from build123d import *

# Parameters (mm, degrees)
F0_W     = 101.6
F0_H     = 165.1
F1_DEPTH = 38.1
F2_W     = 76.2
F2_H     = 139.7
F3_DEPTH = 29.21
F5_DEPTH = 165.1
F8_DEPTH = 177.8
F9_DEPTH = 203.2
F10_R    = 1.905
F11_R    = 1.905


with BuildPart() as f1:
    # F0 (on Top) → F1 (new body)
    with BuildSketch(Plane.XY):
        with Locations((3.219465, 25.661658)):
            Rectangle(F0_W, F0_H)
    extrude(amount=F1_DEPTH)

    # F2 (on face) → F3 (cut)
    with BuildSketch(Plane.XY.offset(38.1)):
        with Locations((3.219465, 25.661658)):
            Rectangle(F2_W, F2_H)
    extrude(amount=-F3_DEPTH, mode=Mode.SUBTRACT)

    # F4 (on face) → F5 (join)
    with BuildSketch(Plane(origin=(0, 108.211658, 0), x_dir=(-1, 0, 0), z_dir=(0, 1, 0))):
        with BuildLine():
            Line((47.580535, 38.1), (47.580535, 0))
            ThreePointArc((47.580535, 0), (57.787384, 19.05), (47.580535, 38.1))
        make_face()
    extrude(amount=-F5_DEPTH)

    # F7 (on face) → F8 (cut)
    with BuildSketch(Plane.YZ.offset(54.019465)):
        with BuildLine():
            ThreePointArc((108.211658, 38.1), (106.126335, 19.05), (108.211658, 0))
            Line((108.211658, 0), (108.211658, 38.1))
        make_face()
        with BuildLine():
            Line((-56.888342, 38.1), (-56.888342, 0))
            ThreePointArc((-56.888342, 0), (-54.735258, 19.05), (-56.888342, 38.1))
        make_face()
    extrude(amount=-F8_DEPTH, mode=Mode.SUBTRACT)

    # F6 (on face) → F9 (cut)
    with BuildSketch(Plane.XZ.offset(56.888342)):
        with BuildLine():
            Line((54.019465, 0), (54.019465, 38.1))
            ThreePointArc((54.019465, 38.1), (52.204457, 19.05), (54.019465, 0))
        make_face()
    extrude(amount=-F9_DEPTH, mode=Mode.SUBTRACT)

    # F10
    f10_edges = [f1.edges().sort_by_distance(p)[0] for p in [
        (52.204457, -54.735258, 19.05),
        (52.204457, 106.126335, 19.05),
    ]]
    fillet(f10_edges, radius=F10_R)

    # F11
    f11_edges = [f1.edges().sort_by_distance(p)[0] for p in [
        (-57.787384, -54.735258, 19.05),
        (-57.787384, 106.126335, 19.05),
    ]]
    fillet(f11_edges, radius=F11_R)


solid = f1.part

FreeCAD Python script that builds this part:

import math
import FreeCAD as App
import Part
import Sketcher
Q = App.Units.Quantity


def edges_at(feature, points):
    """Names of the edges that pass closest to the given points."""
    edges = feature.Shape.Edges
    near = lambda p: min(range(len(edges)), key=lambda i: edges[i].distToShape(Part.Vertex(*p))[0])
    return sorted({f"Edge{near(p) + 1}" for p in points})

doc = App.newDocument("Part")
body = doc.addObject("PartDesign::Body", "Body")

sketch1 = body.newObject("Sketcher::SketchObject", "Sketch")
sketch1.AttachmentSupport = (doc.getObject("XY_Plane"), [""])
sketch1.MapMode = "FlatFace"
sketch1.addGeometry(Part.LineSegment(App.Vector(-48, 108, 0), App.Vector(-48, -57, 0)), False)
sketch1.addGeometry(Part.LineSegment(App.Vector(-48, -57, 0), App.Vector(54, -57, 0)), False)
sketch1.addGeometry(Part.LineSegment(App.Vector(54, -57, 0), App.Vector(54, 108, 0)), False)
sketch1.addGeometry(Part.LineSegment(App.Vector(54, 108, 0), App.Vector(-48, 108, 0)), False)
sketch1.addConstraint(Sketcher.Constraint("Coincident", 0, 2, 1, 1))
sketch1.addConstraint(Sketcher.Constraint("Coincident", 1, 2, 2, 1))
sketch1.addConstraint(Sketcher.Constraint("Coincident", 2, 2, 3, 1))
sketch1.addConstraint(Sketcher.Constraint("Coincident", 3, 2, 0, 1))
sketch1.addConstraint(Sketcher.Constraint("Vertical", 0))
sketch1.addConstraint(Sketcher.Constraint("Horizontal", 1))
sketch1.addConstraint(Sketcher.Constraint("Vertical", 2))
sketch1.addConstraint(Sketcher.Constraint("Horizontal", 3))
sketch1.addConstraint(Sketcher.Constraint("DistanceX", 1, 1, 1, 2, Q("4 in")))
sketch1.addConstraint(Sketcher.Constraint("DistanceY", 0, 2, 0, 1, Q("6.5 in")))
sketch1.addConstraint(Sketcher.Constraint("DistanceY", -1, 1, 2, 2, 108.211658))
sketch1.addConstraint(Sketcher.Constraint("DistanceX", 0, 2, -1, 1, 47.580535))
pad1 = body.newObject("PartDesign::Pad", "Pad")
pad1.Profile = sketch1
pad1.Length = Q("1.5 in")

sketch2 = body.newObject("Sketcher::SketchObject", "Sketch001")
sketch2.AttachmentSupport = (doc.getObject("XY_Plane"), [""])
sketch2.MapMode = "FlatFace"
sketch2.AttachmentOffset = App.Placement(App.Vector(0, 0, 1.5 * 25.4), App.Rotation())
sketch2.addGeometry(Part.LineSegment(App.Vector(-35, 96, 0), App.Vector(-35, -44, 0)), False)
sketch2.addGeometry(Part.LineSegment(App.Vector(-35, -44, 0), App.Vector(41, -44, 0)), False)
sketch2.addGeometry(Part.LineSegment(App.Vector(41, -44, 0), App.Vector(41, 96, 0)), False)
sketch2.addGeometry(Part.LineSegment(App.Vector(41, 96, 0), App.Vector(-35, 96, 0)), False)
sketch2.addConstraint(Sketcher.Constraint("Coincident", 0, 2, 1, 1))
sketch2.addConstraint(Sketcher.Constraint("Coincident", 1, 2, 2, 1))
sketch2.addConstraint(Sketcher.Constraint("Coincident", 2, 2, 3, 1))
sketch2.addConstraint(Sketcher.Constraint("Coincident", 3, 2, 0, 1))
sketch2.addConstraint(Sketcher.Constraint("Vertical", 0))
sketch2.addConstraint(Sketcher.Constraint("Horizontal", 1))
sketch2.addConstraint(Sketcher.Constraint("Vertical", 2))
sketch2.addConstraint(Sketcher.Constraint("Horizontal", 3))
sketch2.addConstraint(Sketcher.Constraint("DistanceX", 1, 1, 1, 2, Q("3 in")))
sketch2.addConstraint(Sketcher.Constraint("DistanceY", 0, 2, 0, 1, Q("5.5 in")))
sketch2.addConstraint(Sketcher.Constraint("DistanceX", 0, 2, -1, 1, 34.880535))
sketch2.addConstraint(Sketcher.Constraint("DistanceY", 0, 2, -1, 1, 44.188342))
pocket1 = body.newObject("PartDesign::Pocket", "Pocket")
pocket1.Profile = sketch2
pocket1.Length = Q("1.15 in")

sketch3 = body.newObject("Sketcher::SketchObject", "Sketch002")
sketch3.AttachmentSupport = (doc.getObject("XZ_Plane"), [""])
sketch3.MapMode = "FlatFace"
sketch3.AttachmentOffset = App.Placement(App.Vector(0, 0, -108.211658), App.Rotation())
sketch3.addGeometry(Part.LineSegment(App.Vector(-48, 38, 0), App.Vector(-48, 0, 0)), False)
sketch3.addGeometry(Part.ArcOfCircle(Part.Circle(App.Vector(-35, 19, 0), App.Vector(0, 0, 1), 23), math.radians(124), math.radians(236)), False)
sketch3.addConstraint(Sketcher.Constraint("Coincident", 0, 1, 1, 1))
sketch3.addConstraint(Sketcher.Constraint("Coincident", 1, 2, 0, 2))
sketch3.addConstraint(Sketcher.Constraint("Vertical", 0))
sketch3.addConstraint(Sketcher.Constraint("PointOnObject", 1, 2, -1))
sketch3.addConstraint(Sketcher.Constraint("DistanceY", 0, 2, 0, 1, Q("1.5 in")))
sketch3.addConstraint(Sketcher.Constraint("Radius", 1, 22.880826))
sketch3.addConstraint(Sketcher.Constraint("DistanceX", 1, 3, -1, 1, 34.906558))
pad2 = body.newObject("PartDesign::Pad", "Pad001")
pad2.Profile = sketch3
pad2.Length = Q("6.5 in")

sketch4 = body.newObject("Sketcher::SketchObject", "Sketch003")
sketch4.AttachmentSupport = (doc.getObject("YZ_Plane"), [""])
sketch4.MapMode = "FlatFace"
sketch4.AttachmentOffset = App.Placement(App.Vector(0, 0, 54.019465), App.Rotation())
sketch4.addGeometry(Part.ArcOfCircle(Part.Circle(App.Vector(194, 19, 0), App.Vector(0, 0, 1), 88), math.radians(168), math.radians(192)), False)
sketch4.addGeometry(Part.LineSegment(App.Vector(108, 0, 0), App.Vector(108, 38, 0)), False)
sketch4.addGeometry(Part.LineSegment(App.Vector(-57, 38, 0), App.Vector(-57, 0, 0)), False)
sketch4.addGeometry(Part.ArcOfCircle(Part.Circle(App.Vector(-140, 19, 0), App.Vector(0, 0, 1), 85), math.radians(-13), math.radians(13)), False)
sketch4.addConstraint(Sketcher.Constraint("Coincident", 0, 1, 1, 2))
sketch4.addConstraint(Sketcher.Constraint("Coincident", 1, 1, 0, 2))
sketch4.addConstraint(Sketcher.Constraint("Coincident", 2, 1, 3, 2))
sketch4.addConstraint(Sketcher.Constraint("Coincident", 3, 1, 2, 2))
sketch4.addConstraint(Sketcher.Constraint("Vertical", 1))
sketch4.addConstraint(Sketcher.Constraint("Vertical", 2))
sketch4.addConstraint(Sketcher.Constraint("PointOnObject", 1, 1, -1))
sketch4.addConstraint(Sketcher.Constraint("PointOnObject", 3, 1, -1))
sketch4.addConstraint(Sketcher.Constraint("Horizontal", 0, 3, 3, 3))
sketch4.addConstraint(Sketcher.Constraint("DistanceY", 1, 1, 1, 2, Q("1.5 in")))
sketch4.addConstraint(Sketcher.Constraint("DistanceX", 2, 1, 0, 1, Q("6.5 in")))
sketch4.addConstraint(Sketcher.Constraint("Radius", 0, 88.05616))
sketch4.addConstraint(Sketcher.Constraint("Radius", 3, 85.351587))
sketch4.addConstraint(Sketcher.Constraint("DistanceX", -1, 1, 0, 1, 108.211658))
pocket2 = body.newObject("PartDesign::Pocket", "Pocket001")
pocket2.Profile = sketch4
pocket2.Length = Q("7 in")

sketch5 = body.newObject("Sketcher::SketchObject", "Sketch004")
sketch5.AttachmentSupport = (doc.getObject("XZ_Plane"), [""])
sketch5.MapMode = "FlatFace"
sketch5.AttachmentOffset = App.Placement(App.Vector(0, 0, 56.888342), App.Rotation())
sketch5.addGeometry(Part.LineSegment(App.Vector(54, 0, 0), App.Vector(54, 38, 0)), False)
sketch5.addGeometry(Part.ArcOfCircle(Part.Circle(App.Vector(153, 19, 0), App.Vector(0, 0, 1), 101), math.radians(169), math.radians(191)), False)
sketch5.addConstraint(Sketcher.Constraint("Coincident", 0, 1, 1, 2))
sketch5.addConstraint(Sketcher.Constraint("Coincident", 1, 1, 0, 2))
sketch5.addConstraint(Sketcher.Constraint("Vertical", 0))
sketch5.addConstraint(Sketcher.Constraint("PointOnObject", 0, 1, -1))
sketch5.addConstraint(Sketcher.Constraint("DistanceY", 0, 1, 0, 2, Q("1.5 in")))
sketch5.addConstraint(Sketcher.Constraint("Radius", 1, 100.880204))
sketch5.addConstraint(Sketcher.Constraint("DistanceX", -1, 1, 1, 3, 153.084661))
pocket3 = body.newObject("PartDesign::Pocket", "Pocket002")
pocket3.Profile = sketch5
pocket3.Length = Q("8 in")
doc.recompute()

fillet = body.newObject("PartDesign::Fillet", "Fillet")
fillet.Base = (pocket3, edges_at(pocket3, [(52.204, -54.735, 19.05), (52.204, 106.126, 19.05)]))
fillet.Radius = Q("0.075 in")
doc.recompute()

fillet2 = body.newObject("PartDesign::Fillet", "Fillet001")
fillet2.Base = (fillet, edges_at(fillet, [(-57.787, -54.735, 19.05), (-57.787, 106.126, 19.05)]))
fillet2.Radius = Q("0.075 in")

doc.recompute()
